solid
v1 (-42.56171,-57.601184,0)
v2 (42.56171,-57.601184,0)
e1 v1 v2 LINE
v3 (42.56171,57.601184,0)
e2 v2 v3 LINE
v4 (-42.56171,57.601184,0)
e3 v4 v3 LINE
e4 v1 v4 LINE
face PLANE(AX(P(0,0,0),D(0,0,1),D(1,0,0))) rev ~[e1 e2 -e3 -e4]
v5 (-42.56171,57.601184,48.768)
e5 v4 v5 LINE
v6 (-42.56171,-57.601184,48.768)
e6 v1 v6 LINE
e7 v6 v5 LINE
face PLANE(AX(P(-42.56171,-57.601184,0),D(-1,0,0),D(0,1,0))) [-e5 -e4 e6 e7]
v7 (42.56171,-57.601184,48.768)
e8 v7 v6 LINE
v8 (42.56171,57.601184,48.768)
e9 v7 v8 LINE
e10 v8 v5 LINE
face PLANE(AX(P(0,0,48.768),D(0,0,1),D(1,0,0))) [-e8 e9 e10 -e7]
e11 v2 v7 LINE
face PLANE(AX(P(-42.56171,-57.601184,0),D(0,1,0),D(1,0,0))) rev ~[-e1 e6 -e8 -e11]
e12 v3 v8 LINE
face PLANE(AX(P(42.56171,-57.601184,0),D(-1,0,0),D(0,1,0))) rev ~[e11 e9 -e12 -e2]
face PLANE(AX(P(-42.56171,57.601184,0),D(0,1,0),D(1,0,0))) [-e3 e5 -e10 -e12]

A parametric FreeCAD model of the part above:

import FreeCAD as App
import Part
import Sketcher

V = App.Vector
Q = App.Units.Quantity


def add_polygon(sketch, points):
    """Adds a closed chain of lines whose ends are joined by coincident constraints."""
    first, n = sketch.GeometryCount, len(points)
    for a, b in zip(points, points[1:] + points[:1]):
        sketch.addGeometry(Part.LineSegment(App.Vector(*a, 0), App.Vector(*b, 0)), False)
    for i in range(n):
        sketch.addConstraint(Sketcher.Constraint("Coincident", first + i, 2, first + (i + 1) % n, 1))

doc = App.newDocument("Part")
body = doc.addObject("PartDesign::Body", "Body")

# Sketch on XY plane
sketch1 = body.newObject("Sketcher::SketchObject", "Sketch")
sketch1.AttachmentSupport = (doc.getObject("XY_Plane"), [""])
sketch1.MapMode = "FlatFace"
add_polygon(sketch1, [(-43, 58), (-43, -58), (43, -58), (43, 58)])  # lines 0-3
sketch1.addConstraint([
    Sketcher.Constraint("Vertical", 0),
    Sketcher.Constraint("Horizontal", 1),
    Sketcher.Constraint("Vertical", 2),
    Sketcher.Constraint("Horizontal", 3),
    Sketcher.Constraint("Symmetric", 0, 2, 2, 2, -1, 1),
    Sketcher.Constraint("DistanceX", 1, 1, 1, 2, 85.12342),
    Sketcher.Constraint("DistanceY", 0, 2, 0, 1, 115.202368),
])
pad1 = body.newObject("PartDesign::Pad", "Pad")
pad1.Profile = sketch1
pad1.Length = Q("1.92 in")

# Sketch on YZ plane
sketch2 = body.newObject("Sketcher::SketchObject", "Sketch001")
sketch2.AttachmentSupport = (doc.getObject("YZ_Plane"), [""])
sketch2.MapMode = "FlatFace"
sketch2.AttachmentOffset = App.Placement(V(0, 0, 42.56171), App.Rotation())
add_polygon(sketch2, [(-58, 49), (-58, 0), (58, 0), (58, 49)])  # lines 0-3
sketch2.addConstraint([
    Sketcher.Constraint("Vertical", 0),
    Sketcher.Constraint("Horizontal", 1),
    Sketcher.Constraint("Vertical", 2),
    Sketcher.Constraint("Horizontal", 3),
    Sketcher.Constraint("Symmetric", 0, 2, 1, 2, -1, 1),
    Sketcher.Constraint("DistanceY", 0, 2, 0, 1, Q("1.92 in")),
    Sketcher.Constraint("DistanceX", 1, 1, 1, 2, 115.202368),
])
pad2 = body.newObject("PartDesign::Pad", "Pad001")
pad2.Profile = sketch2
pad2.Length = Q("2.67 in")
pad2.Reversed = True

doc.recompute()
